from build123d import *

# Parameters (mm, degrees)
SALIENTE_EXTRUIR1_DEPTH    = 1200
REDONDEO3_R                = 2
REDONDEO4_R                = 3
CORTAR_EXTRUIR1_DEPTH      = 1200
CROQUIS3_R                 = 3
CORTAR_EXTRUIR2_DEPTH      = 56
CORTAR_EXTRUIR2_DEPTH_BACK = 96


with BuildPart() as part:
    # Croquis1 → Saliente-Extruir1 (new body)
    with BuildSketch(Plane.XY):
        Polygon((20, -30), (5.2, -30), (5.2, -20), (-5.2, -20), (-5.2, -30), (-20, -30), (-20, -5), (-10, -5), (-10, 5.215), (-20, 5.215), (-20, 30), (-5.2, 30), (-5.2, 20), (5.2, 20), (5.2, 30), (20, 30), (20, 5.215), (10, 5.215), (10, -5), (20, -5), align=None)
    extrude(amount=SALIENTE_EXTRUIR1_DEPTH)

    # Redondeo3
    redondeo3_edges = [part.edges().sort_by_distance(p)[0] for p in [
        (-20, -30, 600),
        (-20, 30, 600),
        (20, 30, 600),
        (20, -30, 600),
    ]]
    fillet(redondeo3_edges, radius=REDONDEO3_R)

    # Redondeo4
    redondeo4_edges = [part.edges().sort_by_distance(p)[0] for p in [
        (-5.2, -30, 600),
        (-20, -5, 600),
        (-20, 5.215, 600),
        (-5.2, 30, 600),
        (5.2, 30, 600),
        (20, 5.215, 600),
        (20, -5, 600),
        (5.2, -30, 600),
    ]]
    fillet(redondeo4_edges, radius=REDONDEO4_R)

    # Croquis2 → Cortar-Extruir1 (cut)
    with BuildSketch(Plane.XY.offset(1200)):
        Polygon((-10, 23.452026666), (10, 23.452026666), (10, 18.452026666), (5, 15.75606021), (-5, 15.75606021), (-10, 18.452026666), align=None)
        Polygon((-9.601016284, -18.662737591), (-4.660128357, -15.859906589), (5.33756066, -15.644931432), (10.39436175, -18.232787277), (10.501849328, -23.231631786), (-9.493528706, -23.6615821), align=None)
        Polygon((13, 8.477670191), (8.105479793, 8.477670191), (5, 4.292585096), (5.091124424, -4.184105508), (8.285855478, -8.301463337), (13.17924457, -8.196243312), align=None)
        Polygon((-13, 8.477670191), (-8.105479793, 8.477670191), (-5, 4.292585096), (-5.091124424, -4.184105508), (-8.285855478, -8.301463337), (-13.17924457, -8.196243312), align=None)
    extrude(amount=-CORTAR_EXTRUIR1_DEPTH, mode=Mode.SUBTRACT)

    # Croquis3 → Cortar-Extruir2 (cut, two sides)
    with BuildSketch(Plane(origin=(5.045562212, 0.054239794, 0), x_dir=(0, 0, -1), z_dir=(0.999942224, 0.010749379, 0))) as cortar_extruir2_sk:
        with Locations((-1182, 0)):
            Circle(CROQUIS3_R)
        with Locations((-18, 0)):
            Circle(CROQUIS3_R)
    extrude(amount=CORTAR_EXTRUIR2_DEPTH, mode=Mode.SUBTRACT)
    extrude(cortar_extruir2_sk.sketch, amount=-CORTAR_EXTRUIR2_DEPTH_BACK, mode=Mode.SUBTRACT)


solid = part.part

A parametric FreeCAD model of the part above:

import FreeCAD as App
import Part
import Sketcher
from FreeCAD import Vector
Q = App.Units.Quantity


def edges_at(feature, points):
    """Names of the edges that pass closest to the given points."""
    edges = feature.Shape.Edges
    near = lambda p: min(range(len(edges)), key=lambda i: edges[i].distToShape(Part.Vertex(*p))[0])
    return sorted({f"Edge{near(p) + 1}" for p in points})

doc = App.newDocument("Part")
body = doc.addObject("PartDesign::Body", "Body")

sketch1 = doc.addObject("Sketcher::SketchObject", "Sketch")
body.addObject(sketch1)
sketch1.AttachmentSupport = (doc.XY_Plane, [""])
sketch1.MapMode = "FlatFace"
sketch1.addGeometry([
    Part.LineSegment(Vector(5.2, -30, 0), Vector(20, -30, 0)),
    Part.LineSegment(Vector(20, -30, 0), Vector(20, -5, 0)),
    Part.LineSegment(Vector(20, -5, 0), Vector(10, -5, 0)),
    Part.LineSegment(Vector(10, -5, 0), Vector(10, 5.215, 0)),
    Part.LineSegment(Vector(10, 5.215, 0), Vector(20, 5.215, 0)),
    Part.LineSegment(Vector(20, 5.215, 0), Vector(20, 30, 0)),
    Part.LineSegment(Vector(20, 30, 0), Vector(5.2, 30, 0)),
    Part.LineSegment(Vector(5.2, 30, 0), Vector(5.2, 20, 0)),
    Part.LineSegment(Vector(5.2, 20, 0), Vector(-5.2, 20, 0)),
    Part.LineSegment(Vector(-5.2, 20, 0), Vector(-5.2, 30, 0)),
    Part.LineSegment(Vector(-5.2, 30, 0), Vector(-20, 30, 0)),
    Part.LineSegment(Vector(-20, 30, 0), Vector(-20, 5.215, 0)),
    Part.LineSegment(Vector(-20, 5.215, 0), Vector(-10, 5.215, 0)),
    Part.LineSegment(Vector(-10, 5.215, 0), Vector(-10, -5, 0)),
    Part.LineSegment(Vector(-10, -5, 0), Vector(-20, -5, 0)),
    Part.LineSegment(Vector(-20, -5, 0), Vector(-20, -30, 0)),
    Part.LineSegment(Vector(-20, -30, 0), Vector(-5.2, -30, 0)),
    Part.LineSegment(Vector(-5.2, -30, 0), Vector(-5.2, -20, 0)),
    Part.LineSegment(Vector(-5.2, -20, 0), Vector(5.2, -20, 0)),
    Part.LineSegment(Vector(5.2, -20, 0), Vector(5.2, -30, 0)),
], False)
sketch1.addConstraint([
    Sketcher.Constraint("Coincident", 0, 2, 1, 1),
    Sketcher.Constraint("Coincident", 1, 2, 2, 1),
    Sketcher.Constraint("Coincident", 2, 2, 3, 1),
    Sketcher.Constraint("Coincident", 3, 2, 4, 1),
    Sketcher.Constraint("Coincident", 4, 2, 5, 1),
    Sketcher.Constraint("Coincident", 5, 2, 6, 1),
    Sketcher.Constraint("Coincident", 6, 2, 7, 1),
    Sketcher.Constraint("Coincident", 7, 2, 8, 1),
    Sketcher.Constraint("Coincident", 8, 2, 9, 1),
    Sketcher.Constraint("Coincident", 9, 2, 10, 1),
    Sketcher.Constraint("Coincident", 10, 2, 11, 1),
    Sketcher.Constraint("Coincident", 11, 2, 12, 1),
    Sketcher.Constraint("Coincident", 12, 2, 13, 1),
    Sketcher.Constraint("Coincident", 13, 2, 14, 1),
    Sketcher.Constraint("Coincident", 14, 2, 15, 1),
    Sketcher.Constraint("Coincident", 15, 2, 16, 1),
    Sketcher.Constraint("Coincident", 16, 2, 17, 1),
    Sketcher.Constraint("Coincident", 17, 2, 18, 1),
    Sketcher.Constraint("Coincident", 18, 2, 19, 1),
    Sketcher.Constraint("Coincident", 19, 2, 0, 1),
    Sketcher.Constraint("Horizontal", 0),
    Sketcher.Constraint("Vertical", 1),
    Sketcher.Constraint("Horizontal", 2),
    Sketcher.Constraint("Vertical", 3),
    Sketcher.Constraint("Horizontal", 4),
    Sketcher.Constraint("Vertical", 5),
    Sketcher.Constraint("Horizontal", 6),
    Sketcher.Constraint("Vertical", 7),
    Sketcher.Constraint("Horizontal", 8),
    Sketcher.Constraint("Vertical", 9),
    Sketcher.Constraint("Horizontal", 10),
    Sketcher.Constraint("Vertical", 11),
    Sketcher.Constraint("Horizontal", 12),
    Sketcher.Constraint("Vertical", 13),
    Sketcher.Constraint("Horizontal", 14),
    Sketcher.Constraint("Vertical", 15),
    Sketcher.Constraint("Horizontal", 16),
    Sketcher.Constraint("Vertical", 17),
    Sketcher.Constraint("Horizontal", 18),
    Sketcher.Constraint("Vertical", 19),
    Sketcher.Constraint("Symmetric", 0, 2, 10, 2, -1, 1),
    Sketcher.Constraint("Symmetric", 5, 2, 15, 2, -1, 1),
    Sketcher.Constraint("Symmetric", 7, 2, 17, 2, -1, 1),
    Sketcher.Constraint("Symmetric", 6, 2, 9, 2, -2),
    Sketcher.Constraint("Symmetric", 4, 2, 11, 2, -2),
    Sketcher.Constraint("Symmetric", 2, 2, 13, 2, -2),
    Sketcher.Constraint("Vertical", 7, 2, 18, 2),
    Sketcher.Constraint("Equal", 14, 7),
    Sketcher.Constraint("DistanceX", 2, 2, 2, 1, Q("10 mm")),
    Sketcher.Constraint("DistanceY", 1, 1, 1, 2, Q("25 mm")),
    Sketcher.Constraint("DistanceX", 0, 1, 0, 2, Q("14.8 mm")),
    Sketcher.Constraint("DistanceX", 8, 2, 8, 1, Q("10.4 mm")),
    Sketcher.Constraint("DistanceY", 0, 2, -1, 1, Q("30 mm")),
    Sketcher.Constraint("DistanceY", 3, 1, 3, 2, Q("10.215 mm")),
])
pad1 = doc.addObject("PartDesign::Pad", "Pad")
body.addObject(pad1)
pad1.Profile = sketch1
pad1.Length = 1200
doc.recompute()

fillet = doc.addObject("PartDesign::Fillet", "Fillet")
body.addObject(fillet)
fillet.Base = (pad1, edges_at(pad1, [
    (-20, -30, 600),
    (-20, 30, 600),
    (20, 30, 600),
    (20, -30, 600),
]))
fillet.Radius = 2
doc.recompute()

fillet2 = doc.addObject("PartDesign::Fillet", "Fillet001")
body.addObject(fillet2)
fillet2.Base = (fillet, edges_at(fillet, [
    (-5.2, -30, 600),
    (-20, -5, 600),
    (-20, 5.215, 600),
    (-5.2, 30, 600),
    (5.2, 30, 600),
    (20, 5.215, 600),
    (20, -5, 600),
    (5.2, -30, 600),
]))
fillet2.Radius = 3

sketch2 = doc.addObject("Sketcher::SketchObject", "Sketch001")
body.addObject(sketch2)
sketch2.AttachmentSupport = (doc.XY_Plane, [""])
sketch2.MapMode = "FlatFace"
sketch2.AttachmentOffset = App.Placement(Vector(0, 0, 1200), App.Rotation())
sketch2.addGeometry([
    Part.LineSegment(Vector(10, 23.452027, 0), Vector(-10, 23.452027, 0)),
    Part.LineSegment(Vector(-10, 23.452027, 0), Vector(-10, 18.452027, 0)),
    Part.LineSegment(Vector(-10, 18.452027, 0), Vector(-5, 15.75606, 0)),
    Part.LineSegment(Vector(-5, 15.75606, 0), Vector(5, 15.75606, 0)),
    Part.LineSegment(Vector(5, 15.75606, 0), Vector(10, 18.452027, 0)),
    Part.LineSegment(Vector(10, 18.452027, 0), Vector(10, 23.452027, 0)),
    Part.LineSegment(Vector(-4.660128, -15.859907, 0), Vector(-9.601016, -18.662738, 0)),
    Part.LineSegment(Vector(-9.601016, -18.662738, 0), Vector(-9.493529, -23.661582, 0)),
    Part.LineSegment(Vector(-9.493529, -23.661582, 0), Vector(10.501849, -23.231632, 0)),
    Part.LineSegment(Vector(10.501849, -23.231632, 0), Vector(10.394362, -18.232787, 0)),
    Part.LineSegment(Vector(10.394362, -18.232787, 0), Vector(5.337561, -15.644931, 0)),
    Part.LineSegment(Vector(5.337561, -15.644931, 0), Vector(-4.660128, -15.859907, 0)),
    Part.LineSegment(Vector(13, 8.47767, 0), Vector(8.10548, 8.47767, 0)),
    Part.LineSegment(Vector(8.10548, 8.47767, 0), Vector(5, 4.292585, 0)),
    Part.LineSegment(Vector(5, 4.292585, 0), Vector(5.091124, -4.184106, 0)),
    Part.LineSegment(Vector(5.091124, -4.184106, 0), Vector(8.285855, -8.301463, 0)),
    Part.LineSegment(Vector(8.285855, -8.301463, 0), Vector(13.179245, -8.196243, 0)),
    Part.LineSegment(Vector(13.179245, -8.196243, 0), Vector(13, 8.47767, 0)),
    Part.LineSegment(Vector(-8.10548, 8.47767, 0), Vector(-13, 8.47767, 0)),
    Part.LineSegment(Vector(-13, 8.47767, 0), Vector(-13.179245, -8.196243, 0)),
    Part.LineSegment(Vector(-13.179245, -8.196243, 0), Vector(-8.285855, -8.301463, 0)),
    Part.LineSegment(Vector(-8.285855, -8.301463, 0), Vector(-5.091124, -4.184106, 0)),
    Part.LineSegment(Vector(-5.091124, -4.184106, 0), Vector(-5, 4.292585, 0)),
    Part.LineSegment(Vector(-5, 4.292585, 0), Vector(-8.10548, 8.47767, 0)),
], False)
sketch2.addConstraint([
    Sketcher.Constraint("Coincident", 0, 2, 1, 1),
    Sketcher.Constraint("Coincident", 1, 2, 2, 1),
    Sketcher.Constraint("Coincident", 2, 2, 3, 1),
    Sketcher.Constraint("Coincident", 3, 2, 4, 1),
    Sketcher.Constraint("Coincident", 4, 2, 5, 1),
    Sketcher.Constraint("Coincident", 5, 2, 0, 1),
    Sketcher.Constraint("Coincident", 6, 2, 7, 1),
    Sketcher.Constraint("Coincident", 7, 2, 8, 1),
    Sketcher.Constraint("Coincident", 8, 2, 9, 1),
    Sketcher.Constraint("Coincident", 9, 2, 10, 1),
    Sketcher.Constraint("Coincident", 10, 2, 11, 1),
    Sketcher.Constraint("Coincident", 11, 2, 6, 1),
    Sketcher.Constraint("Coincident", 12, 2, 13, 1),
    Sketcher.Constraint("Coincident", 13, 2, 14, 1),
    Sketcher.Constraint("Coincident", 14, 2, 15, 1),
    Sketcher.Constraint("Coincident", 15, 2, 16, 1),
    Sketcher.Constraint("Coincident", 16, 2, 17, 1),
    Sketcher.Constraint("Coincident", 17, 2, 12, 1),
    Sketcher.Constraint("Coincident", 18, 2, 19, 1),
    Sketcher.Constraint("Coincident", 19, 2, 20, 1),
    Sketcher.Constraint("Coincident", 20, 2, 21, 1),
    Sketcher.Constraint("Coincident", 21, 2, 22, 1),
    Sketcher.Constraint("Coincident", 22, 2, 23, 1),
    Sketcher.Constraint("Coincident", 23, 2, 18, 1),
    Sketcher.Constraint("Horizontal", 0),
    Sketcher.Constraint("Vertical", 1),
    Sketcher.Constraint("Horizontal", 3),
    Sketcher.Constraint("Vertical", 5),
    Sketcher.Constraint("Horizontal", 12),
    Sketcher.Constraint("Horizontal", 18),
    Sketcher.Constraint("Symmetric", 1, 2, 4, 2, -2),
    Sketcher.Constraint("Symmetric", 17, 2, 18, 2, -2),
    Sketcher.Constraint("Symmetric", 16, 2, 19, 2, -2),
    Sketcher.Constraint("Symmetric", 15, 2, 20, 2, -2),
    Sketcher.Constraint("Symmetric", 14, 2, 21, 2, -2),
    Sketcher.Constraint("Symmetric", 13, 2, 22, 2, -2),
    Sketcher.Constraint("Perpendicular", 7, 8),
    Sketcher.Constraint("Perpendicular", 8, 9),
    Sketcher.Constraint("Perpendicular", 9, 11),
    Sketcher.Constraint("Parallel", 11, 16),
    Sketcher.Constraint("Parallel", 14, 17),
    Sketcher.Constraint("Vertical", 3, 2, 13, 2),
    Sketcher.Constraint("Vertical", 2, 2, 22, 2),
    Sketcher.Constraint("Equal", 12, 18),
    Sketcher.Constraint("Equal", 4, 6),
    Sketcher.Constraint("Equal", 7, 9),
    Sketcher.Constraint("Equal", 6, 10),
    Sketcher.Constraint("Equal", 13, 15),
    Sketcher.Constraint("DistanceX", 0, 2, 0, 1, Q("20 mm")),
    Sketcher.Constraint("DistanceX", 3, 1, 3, 2, Q("10 mm")),
    Sketcher.Constraint("DistanceY", 1, 2, 1, 1, Q("5 mm")),
    Sketcher.Constraint("Distance", 7, Q("5 mm")),
    Sketcher.Constraint("Distance", 8, Q("20 mm")),
    Sketcher.Constraint("Distance", 11, Q("10 mm")),
    Sketcher.Constraint("DistanceX", -1, 1, 17, 2, Q("13 mm")),
    Sketcher.Constraint("DistanceX", 12, 2, 12, 1, Q("4.89452 mm")),
    Sketcher.Constraint("DistanceX", 10, 2, 9, 2, Q("5.056801 mm")),
    Sketcher.Constraint("DistanceY", 8, 2, 10, 2, Q("7.5867 mm")),
    Sketcher.Constraint("DistanceY", 11, 2, 14, 2, Q("11.675801 mm")),
    Sketcher.Constraint("Distance", 14, Q("8.47718 mm")),
    Sketcher.Constraint("Distance", 16, Q("4.89452 mm")),
    Sketcher.Constraint("DistanceY", -1, 1, 2, 2, Q("15.75606 mm")),
    Sketcher.Constraint("DistanceX", 7, 2, -1, 1, Q("9.493529 mm")),
    Sketcher.Constraint("DistanceY", 8, 2, -1, 1, Q("23.231632 mm")),
    Sketcher.Constraint("DistanceY", -1, 1, 12, 2, Q("8.47767 mm")),
    Sketcher.Constraint("DistanceX", 14, 2, 15, 2, Q("3.194731 mm")),
])
pocket1 = doc.addObject("PartDesign::Pocket", "Pocket")
body.addObject(pocket1)
pocket1.Profile = sketch2
pocket1.Length = 1200

sketch3 = doc.addObject("Sketcher::SketchObject", "Sketch002")
body.addObject(sketch3)
sketch3.Placement = App.Placement(Vector(5.045562, 0.05424, 0), App.Rotation(Vector(0, 0, -1), Vector(-0.010749379, 0.999942224, 0), Vector(0.999942224, 0.010749379, 0), "ZXY"))
sketch3.addGeometry([
    Part.Circle(Vector(-1182, 0, 0), Vector(0, 0, 1), 3),
    Part.Circle(Vector(-18, 0, 0), Vector(0, 0, 1), 3),
], False)
sketch3.addConstraint([
    Sketcher.Constraint("Equal", 0, 1),
    Sketcher.Constraint("PointOnObject", 0, 3, -1),
    Sketcher.Constraint("PointOnObject", 1, 3, -1),
    Sketcher.Constraint("Diameter", 0, Q("6 mm")),
    Sketcher.Constraint("DistanceX", 0, 3, -1, 1, Q("1182 mm")),
    Sketcher.Constraint("DistanceX", 1, 3, -1, 1, Q("18 mm")),
])
pocket2 = doc.addObject("PartDesign::Pocket", "Pocket001")
body.addObject(pocket2)
pocket2.Profile = sketch3
pocket2.Type = "ThroughAll"
pocket2.Midplane = True

doc.recompute()
